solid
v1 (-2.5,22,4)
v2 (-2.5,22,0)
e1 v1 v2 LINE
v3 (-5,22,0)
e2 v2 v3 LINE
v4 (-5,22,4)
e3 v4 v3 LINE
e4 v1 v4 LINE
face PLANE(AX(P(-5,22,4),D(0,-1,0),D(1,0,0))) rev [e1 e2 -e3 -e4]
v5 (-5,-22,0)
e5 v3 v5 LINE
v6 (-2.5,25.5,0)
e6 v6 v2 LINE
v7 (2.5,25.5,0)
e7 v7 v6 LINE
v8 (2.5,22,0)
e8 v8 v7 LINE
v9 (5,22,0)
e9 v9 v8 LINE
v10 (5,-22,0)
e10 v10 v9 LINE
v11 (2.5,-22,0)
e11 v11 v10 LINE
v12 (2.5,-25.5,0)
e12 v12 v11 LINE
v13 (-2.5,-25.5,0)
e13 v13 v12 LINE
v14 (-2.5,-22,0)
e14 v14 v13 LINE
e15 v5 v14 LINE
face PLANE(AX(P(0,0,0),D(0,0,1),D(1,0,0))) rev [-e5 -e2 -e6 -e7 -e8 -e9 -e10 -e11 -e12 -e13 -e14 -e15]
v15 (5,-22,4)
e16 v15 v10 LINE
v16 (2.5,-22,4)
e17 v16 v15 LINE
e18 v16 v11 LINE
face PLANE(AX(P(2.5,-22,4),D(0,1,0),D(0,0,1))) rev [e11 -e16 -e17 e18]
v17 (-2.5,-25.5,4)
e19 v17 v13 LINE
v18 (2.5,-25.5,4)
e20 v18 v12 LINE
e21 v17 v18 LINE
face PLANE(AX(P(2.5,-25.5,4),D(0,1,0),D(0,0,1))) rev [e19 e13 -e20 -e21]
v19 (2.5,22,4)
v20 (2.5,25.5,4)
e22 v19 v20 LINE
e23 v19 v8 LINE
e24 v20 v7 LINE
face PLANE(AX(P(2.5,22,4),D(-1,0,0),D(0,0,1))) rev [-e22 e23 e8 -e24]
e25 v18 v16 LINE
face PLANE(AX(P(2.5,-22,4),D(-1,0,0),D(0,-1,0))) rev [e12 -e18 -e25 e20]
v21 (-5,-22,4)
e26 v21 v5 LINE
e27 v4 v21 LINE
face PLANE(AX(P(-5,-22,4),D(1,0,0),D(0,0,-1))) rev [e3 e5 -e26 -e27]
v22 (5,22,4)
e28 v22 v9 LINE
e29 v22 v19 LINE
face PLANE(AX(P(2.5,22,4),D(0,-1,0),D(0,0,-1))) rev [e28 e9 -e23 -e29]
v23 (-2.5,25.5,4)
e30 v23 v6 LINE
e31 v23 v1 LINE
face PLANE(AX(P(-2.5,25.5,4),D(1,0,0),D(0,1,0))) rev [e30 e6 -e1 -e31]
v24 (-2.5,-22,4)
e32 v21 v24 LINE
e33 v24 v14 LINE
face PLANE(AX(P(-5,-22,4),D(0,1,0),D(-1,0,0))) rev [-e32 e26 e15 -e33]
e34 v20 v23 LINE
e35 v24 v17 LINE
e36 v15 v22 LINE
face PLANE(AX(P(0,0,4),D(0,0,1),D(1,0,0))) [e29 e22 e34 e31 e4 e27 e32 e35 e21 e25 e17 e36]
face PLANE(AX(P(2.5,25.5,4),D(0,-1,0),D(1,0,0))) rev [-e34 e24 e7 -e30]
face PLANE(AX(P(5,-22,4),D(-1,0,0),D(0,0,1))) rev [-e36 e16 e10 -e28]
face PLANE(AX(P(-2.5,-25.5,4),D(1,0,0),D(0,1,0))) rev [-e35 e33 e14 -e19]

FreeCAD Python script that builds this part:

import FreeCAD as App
import Part
import Sketcher
from FreeCAD import Vector


def add_polygon(sketch, points):
    """Adds a closed chain of lines whose ends are joined by coincident constraints."""
    first, n = sketch.GeometryCount, len(points)
    for a, b in zip(points, points[1:] + points[:1]):
        sketch.addGeometry(Part.LineSegment(App.Vector(*a, 0), App.Vector(*b, 0)), False)
    for i in range(n):
        sketch.addConstraint(Sketcher.Constraint("Coincident", first + i, 2, first + (i + 1) % n, 1))

doc = App.newDocument("Part")
body = doc.addObject("PartDesign::Body", "Body")

# Sketch on XY plane
sketch1 = body.newObject("Sketcher::SketchObject", "Sketch")
sketch1.AttachmentSupport = (doc.getObject("XY_Plane"), [""])
sketch1.MapMode = "FlatFace"
add_polygon(sketch1, [(2.5, 22), (2.5, 25.5), (-2.5, 25.5), (-2.5, 22), (-5, 22), (-5, -22), (-2.5, -22), (-2.5, -25.5), (2.5, -25.5), (2.5, -22), (5, -22), (5, 22)])  # lines 0-11
sketch1.addConstraint([
    Sketcher.Constraint("Vertical", 0),
    Sketcher.Constraint("Horizontal", 1),
    Sketcher.Constraint("Vertical", 2),
    Sketcher.Constraint("Horizontal", 3),
    Sketcher.Constraint("Vertical", 4),
    Sketcher.Constraint("Horizontal", 5),
    Sketcher.Constraint("Vertical", 6),
    Sketcher.Constraint("Horizontal", 7),
    Sketcher.Constraint("Vertical", 8),
    Sketcher.Constraint("Horizontal", 9),
    Sketcher.Constraint("Vertical", 10),
    Sketcher.Constraint("Horizontal", 11),
    Sketcher.Constraint("Symmetric", 0, 2, 6, 2, -1, 1),
    Sketcher.Constraint("Symmetric", 2, 2, 8, 2, -1, 1),
    Sketcher.Constraint("Symmetric", 4, 2, 10, 2, -1, 1),
    Sketcher.Constraint("Symmetric", 5, 2, 8, 2, -2),
    Sketcher.Constraint("DistanceX", 1, 2, 1, 1, 5.0),
    Sketcher.Constraint("DistanceY", 4, 2, 4, 1, 44.0),
    Sketcher.Constraint("DistanceX", 3, 2, 3, 1, 2.5),
    Sketcher.Constraint("DistanceY", 0, 1, 0, 2, 3.5),
])
pad1 = body.newObject("PartDesign::Pad", "Pad")
pad1.Profile = sketch1
pad1.Length = 4

doc.recompute()
